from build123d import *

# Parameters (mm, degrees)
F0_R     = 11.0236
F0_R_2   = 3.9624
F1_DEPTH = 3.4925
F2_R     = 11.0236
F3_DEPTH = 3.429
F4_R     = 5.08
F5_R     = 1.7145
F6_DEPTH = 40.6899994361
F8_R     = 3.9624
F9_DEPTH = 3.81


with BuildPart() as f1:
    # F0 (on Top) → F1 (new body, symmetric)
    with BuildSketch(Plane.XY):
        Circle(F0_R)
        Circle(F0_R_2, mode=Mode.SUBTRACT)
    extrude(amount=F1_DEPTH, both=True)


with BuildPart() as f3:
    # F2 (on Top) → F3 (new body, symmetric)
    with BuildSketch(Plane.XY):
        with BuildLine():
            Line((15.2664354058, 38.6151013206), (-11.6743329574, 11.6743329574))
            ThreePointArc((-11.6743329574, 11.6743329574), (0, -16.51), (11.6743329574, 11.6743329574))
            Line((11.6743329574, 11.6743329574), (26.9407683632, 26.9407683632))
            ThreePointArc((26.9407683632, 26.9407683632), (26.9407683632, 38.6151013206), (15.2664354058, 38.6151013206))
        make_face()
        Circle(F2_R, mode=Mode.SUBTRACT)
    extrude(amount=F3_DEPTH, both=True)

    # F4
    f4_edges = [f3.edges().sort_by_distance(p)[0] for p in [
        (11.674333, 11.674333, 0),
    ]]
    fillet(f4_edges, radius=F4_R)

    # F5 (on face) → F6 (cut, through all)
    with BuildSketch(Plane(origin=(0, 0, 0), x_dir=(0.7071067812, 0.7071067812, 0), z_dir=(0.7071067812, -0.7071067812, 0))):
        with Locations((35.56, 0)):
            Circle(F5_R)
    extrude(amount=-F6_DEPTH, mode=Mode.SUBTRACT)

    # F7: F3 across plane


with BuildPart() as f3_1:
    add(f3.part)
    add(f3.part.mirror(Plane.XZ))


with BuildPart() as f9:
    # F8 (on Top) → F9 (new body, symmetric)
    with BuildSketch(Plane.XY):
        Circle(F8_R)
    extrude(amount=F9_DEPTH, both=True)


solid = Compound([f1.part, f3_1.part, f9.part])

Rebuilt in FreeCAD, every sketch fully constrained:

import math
import FreeCAD as App
import Part
import Sketcher
from FreeCAD import Vector
Q = App.Units.Quantity


def edges_at(feature, points):
    """Names of the edges that pass closest to the given points."""
    edges = feature.Shape.Edges
    near = lambda p: min(range(len(edges)), key=lambda i: edges[i].distToShape(Part.Vertex(*p))[0])
    return sorted({f"Edge{near(p) + 1}" for p in points})

doc = App.newDocument("Part")
body = doc.addObject("PartDesign::Body", "Body")

sketch1 = doc.addObject("Sketcher::SketchObject", "Sketch")
body.addObject(sketch1)
sketch1.AttachmentSupport = (doc.XY_Plane, [""])
sketch1.MapMode = "FlatFace"
sketch1.addGeometry([
    Part.Circle(Vector(0, 0, 0), Vector(0, 0, 1), 11.0236),
    Part.Circle(Vector(0, 0, 0), Vector(0, 0, 1), 3.9624),
], False)
sketch1.addConstraint([
    Sketcher.Constraint("Coincident", 0, 3, -1, 1),
    Sketcher.Constraint("Coincident", 1, 3, -1, 1),
    Sketcher.Constraint("Diameter", 0, Q("0.868 in")),
    Sketcher.Constraint("Diameter", 1, Q("0.312 in")),
])
pad1 = doc.addObject("PartDesign::Pad", "Pad")
body.addObject(pad1)
pad1.Profile = sketch1
pad1.Length = Q("0.275 in")
pad1.Midplane = True
body2 = doc.addObject("PartDesign::Body", "Body001")

sketch2 = doc.addObject("Sketcher::SketchObject", "Sketch001")
body2.addObject(sketch2)
sketch2.AttachmentSupport = (doc.getObject("XY_Plane001"), [""])
sketch2.MapMode = "FlatFace"
sketch2.addGeometry([
    Part.LineSegment(Vector(15.266435, 38.615101, 0), Vector(-11.674333, 11.674333, 0)),
    Part.ArcOfCircle(Part.Circle(Vector(0, 0, 0), Vector(0, 0, 1), 16.51), math.radians(135), math.radians(405)),
    Part.LineSegment(Vector(11.674333, 11.674333, 0), Vector(26.940768, 26.940768, 0)),
    Part.ArcOfCircle(Part.Circle(Vector(21.103602, 32.777935, 0), Vector(0, 0, 1), 8.255), math.radians(-45), math.radians(135)),
    Part.Circle(Vector(0, 0, 0), Vector(0, 0, 1), 11.0236),
], False)
sketch2.addConstraint([
    Sketcher.Constraint("Tangent", 0, 2, 1, 1),
    Sketcher.Constraint("Coincident", 1, 2, 2, 1),
    Sketcher.Constraint("Tangent", 2, 2, 3, 1),
    Sketcher.Constraint("Tangent", 3, 2, 0, 1),
    Sketcher.Constraint("Coincident", 1, 3, -1, 1),
    Sketcher.Constraint("Coincident", 4, 3, -1, 1),
    Sketcher.Constraint("Parallel", 0, 2),
    Sketcher.Constraint("Horizontal", 0, 2, 1, 2),
    Sketcher.Constraint("Radius", 1, Q("0.65 in")),
    Sketcher.Constraint("Diameter", 4, Q("0.868 in")),
    Sketcher.Constraint("Angle", 0, Q("-135 deg")),
    Sketcher.Constraint("Distance", 0, Q("1.5 in")),
])
pad2 = doc.addObject("PartDesign::Pad", "Pad001")
body2.addObject(pad2)
pad2.Profile = sketch2
pad2.Length = Q("0.27 in")
pad2.Midplane = True
doc.recompute()

fillet = doc.addObject("PartDesign::Fillet", "Fillet")
body2.addObject(fillet)
fillet.Base = (pad2, edges_at(pad2, [(11.674, 11.674, 0)]))
fillet.Radius = Q("0.2 in")

sketch3 = doc.addObject("Sketcher::SketchObject", "Sketch002")
body2.addObject(sketch3)
sketch3.Placement = App.Placement(Vector(0, 0, 0), App.Rotation(Vector(0.707106781, 0.707106781, 0), Vector(0, 0, 0.999999999), Vector(0.707106781, -0.707106781, 0), "ZXY"))
sketch3.addGeometry(Part.Circle(Vector(35.56, 0, 0), Vector(0, 0, 1), 1.7145), False)
sketch3.addConstraint([
    Sketcher.Constraint("PointOnObject", 0, 3, -1),
    Sketcher.Constraint("Diameter", 0, Q("0.135 in")),
    Sketcher.Constraint("DistanceX", -1, 1, 0, 3, Q("1.4 in")),
])
pocket1 = doc.addObject("PartDesign::Pocket", "Pocket")
body2.addObject(pocket1)
pocket1.Profile = sketch3
pocket1.Type = "ThroughAll"
body3 = doc.addObject("PartDesign::Body", "Body002")
doc.recompute()

body3.BaseFeature = body2
doc.recompute()

mirroring = doc.addObject("Part::Mirroring", "Mirroring")
mirroring.Source = body2
mirroring.Base = Vector(0, 0, 0)
mirroring.Normal = Vector(0, -1, 0)
body4 = doc.addObject("PartDesign::Body", "Body003")
body4.BaseFeature = mirroring
boolean = doc.addObject("PartDesign::Boolean", "Boolean")
body3.addObject(boolean)
boolean.Type = "Fuse"
boolean.addObjects([body4])
doc.recompute()
body5 = doc.addObject("PartDesign::Body", "Body004")

sketch4 = doc.addObject("Sketcher::SketchObject", "Sketch003")
body5.addObject(sketch4)
sketch4.AttachmentSupport = (doc.getObject("XY_Plane004"), [""])
sketch4.MapMode = "FlatFace"
sketch4.addGeometry(Part.Circle(Vector(0, 0, 0), Vector(0, 0, 1), 3.9624), False)
sketch4.addConstraint([
    Sketcher.Constraint("Coincident", 0, 3, -1, 1),
    Sketcher.Constraint("Diameter", 0, Q("0.312 in")),
])
pad3 = doc.addObject("PartDesign::Pad", "Pad002")
body5.addObject(pad3)
pad3.Profile = sketch4
pad3.Length = Q("0.3 in")
pad3.Midplane = True
mirroring.Visibility = False

doc.recompute()
